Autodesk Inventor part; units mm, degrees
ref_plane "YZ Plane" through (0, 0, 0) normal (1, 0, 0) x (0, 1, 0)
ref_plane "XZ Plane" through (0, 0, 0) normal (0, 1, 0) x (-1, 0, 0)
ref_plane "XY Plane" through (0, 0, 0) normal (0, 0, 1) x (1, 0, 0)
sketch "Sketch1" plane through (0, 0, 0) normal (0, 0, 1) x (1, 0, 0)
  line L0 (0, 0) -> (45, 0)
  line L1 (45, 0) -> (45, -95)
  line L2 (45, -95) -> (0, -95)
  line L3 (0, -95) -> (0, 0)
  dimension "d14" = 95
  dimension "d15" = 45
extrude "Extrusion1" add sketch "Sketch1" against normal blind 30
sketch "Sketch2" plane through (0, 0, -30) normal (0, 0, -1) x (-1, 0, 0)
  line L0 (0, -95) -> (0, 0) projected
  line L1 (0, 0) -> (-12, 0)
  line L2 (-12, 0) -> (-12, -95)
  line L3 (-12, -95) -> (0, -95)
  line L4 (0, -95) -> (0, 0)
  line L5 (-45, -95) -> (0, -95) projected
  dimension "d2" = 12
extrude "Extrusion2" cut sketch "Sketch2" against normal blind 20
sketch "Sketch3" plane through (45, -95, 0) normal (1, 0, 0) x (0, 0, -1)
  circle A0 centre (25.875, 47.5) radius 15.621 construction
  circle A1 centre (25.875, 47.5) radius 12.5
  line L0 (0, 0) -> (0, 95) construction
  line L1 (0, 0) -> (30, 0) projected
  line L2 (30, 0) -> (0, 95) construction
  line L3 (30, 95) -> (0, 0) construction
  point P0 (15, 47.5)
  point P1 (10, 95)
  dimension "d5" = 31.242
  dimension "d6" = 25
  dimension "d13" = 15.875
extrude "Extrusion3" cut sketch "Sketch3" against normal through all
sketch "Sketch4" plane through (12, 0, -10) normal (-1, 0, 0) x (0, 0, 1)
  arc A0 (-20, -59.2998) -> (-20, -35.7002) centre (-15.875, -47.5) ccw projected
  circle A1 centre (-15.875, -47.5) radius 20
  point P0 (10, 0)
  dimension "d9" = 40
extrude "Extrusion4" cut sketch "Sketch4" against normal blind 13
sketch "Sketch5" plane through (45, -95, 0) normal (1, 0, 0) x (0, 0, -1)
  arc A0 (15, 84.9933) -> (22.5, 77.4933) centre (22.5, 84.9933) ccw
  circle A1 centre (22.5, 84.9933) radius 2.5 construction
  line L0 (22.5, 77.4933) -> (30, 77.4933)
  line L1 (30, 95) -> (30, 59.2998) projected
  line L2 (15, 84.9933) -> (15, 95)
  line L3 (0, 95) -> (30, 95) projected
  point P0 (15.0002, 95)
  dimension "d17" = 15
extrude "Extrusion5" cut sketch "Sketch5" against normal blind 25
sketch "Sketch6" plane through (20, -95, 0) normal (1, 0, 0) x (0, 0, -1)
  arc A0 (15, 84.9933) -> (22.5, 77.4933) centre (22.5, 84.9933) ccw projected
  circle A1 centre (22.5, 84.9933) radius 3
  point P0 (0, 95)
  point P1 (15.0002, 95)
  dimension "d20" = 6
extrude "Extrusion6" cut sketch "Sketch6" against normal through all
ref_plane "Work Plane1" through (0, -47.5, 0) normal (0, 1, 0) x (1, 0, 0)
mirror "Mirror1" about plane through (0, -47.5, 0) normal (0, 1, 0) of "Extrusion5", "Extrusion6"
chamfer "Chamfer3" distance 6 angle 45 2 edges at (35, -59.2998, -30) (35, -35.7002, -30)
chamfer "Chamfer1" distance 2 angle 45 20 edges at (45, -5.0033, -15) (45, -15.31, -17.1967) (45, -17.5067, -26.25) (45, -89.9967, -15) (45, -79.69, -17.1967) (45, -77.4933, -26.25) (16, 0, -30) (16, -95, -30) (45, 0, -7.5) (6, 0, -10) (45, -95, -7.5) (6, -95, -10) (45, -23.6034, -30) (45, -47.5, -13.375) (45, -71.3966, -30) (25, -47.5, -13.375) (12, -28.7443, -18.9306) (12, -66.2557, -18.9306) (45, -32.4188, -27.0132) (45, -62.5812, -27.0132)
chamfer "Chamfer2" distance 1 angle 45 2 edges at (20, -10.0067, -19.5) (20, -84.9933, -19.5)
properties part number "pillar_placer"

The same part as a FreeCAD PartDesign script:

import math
import FreeCAD as App
import Part
import Sketcher

V = App.Vector


def edges_at(feature, points):
    """Names of the edges that pass closest to the given points."""
    edges = feature.Shape.Edges
    near = lambda p: min(range(len(edges)), key=lambda i: edges[i].distToShape(Part.Vertex(*p))[0])
    return sorted({f"Edge{near(p) + 1}" for p in points})

doc = App.newDocument("Part")
body = doc.addObject("PartDesign::Body", "Body")

# Sketch on XY plane
sketch1 = doc.addObject("Sketcher::SketchObject", "Sketch")
body.addObject(sketch1)
sketch1.AttachmentSupport = (doc.XY_Plane, [""])
sketch1.MapMode = "FlatFace"
sketch1.addGeometry(Part.LineSegment(V(45, 0, 0), V(0, 0, 0)), False)
sketch1.addGeometry(Part.LineSegment(V(0, 0, 0), V(0, -95, 0)), False)
sketch1.addGeometry(Part.LineSegment(V(0, -95, 0), V(45, -95, 0)), False)
sketch1.addGeometry(Part.LineSegment(V(45, -95, 0), V(45, 0, 0)), False)
sketch1.addConstraint(Sketcher.Constraint("Coincident", 0, 2, 1, 1))
sketch1.addConstraint(Sketcher.Constraint("Coincident", 1, 2, 2, 1))
sketch1.addConstraint(Sketcher.Constraint("Coincident", 2, 2, 3, 1))
sketch1.addConstraint(Sketcher.Constraint("Coincident", 3, 2, 0, 1))
sketch1.addConstraint(Sketcher.Constraint("Horizontal", 0))
sketch1.addConstraint(Sketcher.Constraint("Vertical", 1))
sketch1.addConstraint(Sketcher.Constraint("Horizontal", 2))
sketch1.addConstraint(Sketcher.Constraint("Vertical", 3))
sketch1.addConstraint(Sketcher.Constraint("Coincident", 0, 2, -1, 1))
sketch1.addConstraint(Sketcher.Constraint("DistanceX", 0, 2, 0, 1, 45.0))
sketch1.addConstraint(Sketcher.Constraint("DistanceY", 1, 2, 1, 1, 95.0))
pad1 = doc.addObject("PartDesign::Pad", "Pad")
body.addObject(pad1)
pad1.Profile = sketch1
pad1.Length = 30
pad1.Reversed = True

# Sketch on XY plane
sketch2 = doc.addObject("Sketcher::SketchObject", "Sketch001")
body.addObject(sketch2)
sketch2.AttachmentSupport = (doc.XY_Plane, [""])
sketch2.MapMode = "FlatFace"
sketch2.AttachmentOffset = App.Placement(V(0, 0, -30), App.Rotation())
sketch2.addGeometry(Part.LineSegment(V(12, -95, 0), V(0, -95, 0)), False)
sketch2.addGeometry(Part.LineSegment(V(0, -95, 0), V(0, 0, 0)), False)
sketch2.addGeometry(Part.LineSegment(V(0, 0, 0), V(12, 0, 0)), False)
sketch2.addGeometry(Part.LineSegment(V(12, 0, 0), V(12, -95, 0)), False)
sketch2.addConstraint(Sketcher.Constraint("Coincident", 0, 2, 1, 1))
sketch2.addConstraint(Sketcher.Constraint("Coincident", 1, 2, 2, 1))
sketch2.addConstraint(Sketcher.Constraint("Coincident", 2, 2, 3, 1))
sketch2.addConstraint(Sketcher.Constraint("Coincident", 3, 2, 0, 1))
sketch2.addConstraint(Sketcher.Constraint("Horizontal", 0))
sketch2.addConstraint(Sketcher.Constraint("Vertical", 1))
sketch2.addConstraint(Sketcher.Constraint("Horizontal", 2))
sketch2.addConstraint(Sketcher.Constraint("Vertical", 3))
sketch2.addConstraint(Sketcher.Constraint("Coincident", 1, 2, -1, 1))
sketch2.addConstraint(Sketcher.Constraint("DistanceX", 0, 2, 0, 1, 12.0))
sketch2.addConstraint(Sketcher.Constraint("DistanceY", 1, 1, 1, 2, 95.0))
pocket1 = doc.addObject("PartDesign::Pocket", "Pocket")
body.addObject(pocket1)
pocket1.Profile = sketch2
pocket1.Length = 20
pocket1.Reversed = True

# Sketch on YZ plane
sketch3 = doc.addObject("Sketcher::SketchObject", "Sketch002")
body.addObject(sketch3)
sketch3.AttachmentSupport = (doc.YZ_Plane, [""])
sketch3.MapMode = "FlatFace"
sketch3.AttachmentOffset = App.Placement(V(0, 0, 45), App.Rotation())
sketch3.addGeometry(Part.Circle(V(-48, -26, 0), V(0, 0, 1), 12), False)
sketch3.addConstraint(Sketcher.Constraint("Diameter", 0, 25.0))
sketch3.addConstraint(Sketcher.Constraint("DistanceX", 0, 3, -1, 1, 47.5))
sketch3.addConstraint(Sketcher.Constraint("DistanceY", 0, 3, -1, 1, 25.875))
pocket2 = doc.addObject("PartDesign::Pocket", "Pocket001")
body.addObject(pocket2)
pocket2.Profile = sketch3
pocket2.Type = "ThroughAll"

# Sketch on YZ plane
sketch4 = doc.addObject("Sketcher::SketchObject", "Sketch003")
body.addObject(sketch4)
sketch4.AttachmentSupport = (doc.YZ_Plane, [""])
sketch4.MapMode = "FlatFace"
sketch4.AttachmentOffset = App.Placement(V(0, 0, 12), App.Rotation())
sketch4.addGeometry(Part.Circle(V(-48, -26, 0), V(0, 0, 1), 20), False)
sketch4.addConstraint(Sketcher.Constraint("Diameter", 0, 40.0))
sketch4.addConstraint(Sketcher.Constraint("DistanceX", 0, 3, -1, 1, 47.5))
sketch4.addConstraint(Sketcher.Constraint("DistanceY", 0, 3, -1, 1, 25.875))
pocket3 = doc.addObject("PartDesign::Pocket", "Pocket002")
body.addObject(pocket3)
pocket3.Profile = sketch4
pocket3.Length = 13
pocket3.Reversed = True

# Sketch on YZ plane
sketch5 = doc.addObject("Sketcher::SketchObject", "Sketch004")
body.addObject(sketch5)
sketch5.AttachmentSupport = (doc.YZ_Plane, [""])
sketch5.MapMode = "FlatFace"
sketch5.AttachmentOffset = App.Placement(V(0, 0, 45), App.Rotation())
sketch5.addGeometry(Part.LineSegment(V(0, -15, 0), V(-10, -15, 0)), False)
sketch5.addGeometry(Part.ArcOfCircle(Part.Circle(V(-10, -22, 0), V(0, 0, 1), 8), math.radians(90), math.radians(180)), False)
sketch5.addGeometry(Part.LineSegment(V(-18, -22, 0), V(-18, -30, 0)), False)
sketch5.addGeometry(Part.LineSegment(V(-18, -30, 0), V(0, -30, 0)), False)
sketch5.addGeometry(Part.LineSegment(V(0, -30, 0), V(0, -15, 0)), False)
sketch5.addConstraint(Sketcher.Constraint("Tangent", 0, 2, 1, 1))
sketch5.addConstraint(Sketcher.Constraint("Tangent", 1, 2, 2, 1))
sketch5.addConstraint(Sketcher.Constraint("Coincident", 2, 2, 3, 1))
sketch5.addConstraint(Sketcher.Constraint("Coincident", 3, 2, 4, 1))
sketch5.addConstraint(Sketcher.Constraint("Coincident", 4, 2, 0, 1))
sketch5.addConstraint(Sketcher.Constraint("Horizontal", 0))
sketch5.addConstraint(Sketcher.Constraint("Vertical", 2))
sketch5.addConstraint(Sketcher.Constraint("Horizontal", 3))
sketch5.addConstraint(Sketcher.Constraint("Vertical", 4))
sketch5.addConstraint(Sketcher.Constraint("PointOnObject", 3, 2, -2))
sketch5.addConstraint(Sketcher.Constraint("Radius", 1, 7.5))
sketch5.addConstraint(Sketcher.Constraint("DistanceY", 4, 1, 4, 2, 15.0))
sketch5.addConstraint(Sketcher.Constraint("DistanceY", 0, 2, -1, 1, 15.0))
sketch5.addConstraint(Sketcher.Constraint("DistanceX", 0, 2, 0, 1, 10.0067))
pocket4 = doc.addObject("PartDesign::Pocket", "Pocket003")
body.addObject(pocket4)
pocket4.Profile = sketch5
pocket4.Length = 25

# Sketch on YZ plane
sketch6 = doc.addObject("Sketcher::SketchObject", "Sketch005")
body.addObject(sketch6)
sketch6.AttachmentSupport = (doc.YZ_Plane, [""])
sketch6.MapMode = "FlatFace"
sketch6.AttachmentOffset = App.Placement(V(0, 0, 20), App.Rotation())
sketch6.addGeometry(Part.Circle(V(-10, -22.5, 0), V(0, 0, 1), 3), False)
sketch6.addConstraint(Sketcher.Constraint("Diameter", 0, 6.0))
sketch6.addConstraint(Sketcher.Constraint("DistanceY", 0, 3, -1, 1, 22.5))
sketch6.addConstraint(Sketcher.Constraint("DistanceX", 0, 3, -1, 1, 10.0067))
pocket5 = doc.addObject("PartDesign::Pocket", "Pocket004")
body.addObject(pocket5)
pocket5.Profile = sketch6
pocket5.Type = "ThroughAll"
doc.recompute()

datumplane = doc.addObject("PartDesign::Plane", "DatumPlane")
body.addObject(datumplane)
datumplane.AttachmentSupport = (doc.XZ_Plane, [""])
datumplane.MapMode = "FlatFace"
datumplane.AttachmentOffset = App.Placement(V(0, 0, 47.5), App.Rotation())
mirrored = doc.addObject("PartDesign::Mirrored", "Mirrored")
body.addObject(mirrored)
mirrored.Originals = [pocket4, pocket5]
mirrored.MirrorPlane = (datumplane, [""])
body.Tip = mirrored
doc.recompute()

chamfer = doc.addObject("PartDesign::Chamfer", "Chamfer")
body.addObject(chamfer)
chamfer.Base = (mirrored, edges_at(mirrored, [(35, -59.3, -30), (35, -35.7, -30)]))
chamfer.Size = 6
doc.recompute()

chamfer2 = doc.addObject("PartDesign::Chamfer", "Chamfer001")
body.addObject(chamfer2)
chamfer2.Base = (chamfer, edges_at(chamfer, [
    (45, -5.003, -15),
    (45, -15.31, -17.197),
    (45, -17.507, -26.25),
    (45, -89.997, -15),
    (45, -79.69, -17.197),
    (45, -77.493, -26.25),
    (16, 0, -30),
    (16, -95, -30),
    (45, 0, -7.5),
    (6, 0, -10),
    (45, -95, -7.5),
    (6, -95, -10),
    (45, -23.603, -30),
    (45, -47.5, -13.375),
    (45, -71.397, -30),
    (25, -47.5, -13.375),
    (12, -28.744, -18.931),
    (12, -66.256, -18.931),
    (45, -32.419, -27.013),
    (45, -62.581, -27.013),
]))
chamfer2.Size = 2
doc.recompute()

chamfer3 = doc.addObject("PartDesign::Chamfer", "Chamfer002")
body.addObject(chamfer3)
chamfer3.Base = (chamfer2, edges_at(chamfer2, [(20, -10.007, -19.5), (20, -84.993, -19.5)]))
chamfer3.Size = 1

doc.recompute()
